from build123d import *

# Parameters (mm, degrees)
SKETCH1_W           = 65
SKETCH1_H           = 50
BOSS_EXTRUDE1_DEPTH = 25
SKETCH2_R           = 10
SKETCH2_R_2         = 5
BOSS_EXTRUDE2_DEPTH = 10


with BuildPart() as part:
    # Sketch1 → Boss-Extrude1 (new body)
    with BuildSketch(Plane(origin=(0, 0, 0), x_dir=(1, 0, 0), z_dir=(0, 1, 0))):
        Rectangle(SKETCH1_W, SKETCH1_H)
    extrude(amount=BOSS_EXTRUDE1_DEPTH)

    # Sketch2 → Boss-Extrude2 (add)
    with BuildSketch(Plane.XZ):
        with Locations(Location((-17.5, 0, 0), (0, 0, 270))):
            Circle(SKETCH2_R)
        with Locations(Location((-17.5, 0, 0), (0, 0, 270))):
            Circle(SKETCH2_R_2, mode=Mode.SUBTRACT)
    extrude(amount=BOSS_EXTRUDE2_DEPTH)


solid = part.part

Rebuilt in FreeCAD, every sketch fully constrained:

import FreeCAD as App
import Part
import Sketcher

V = App.Vector
Q = App.Units.Quantity

doc = App.newDocument("Part")
params = doc.addObject("Spreadsheet::Sheet", "Params")
for row, (alias, value) in enumerate([
    ("sketch1_width", "65 mm"),
    ("sketch1_height", "50 mm"),
    ("pad1_length", "25 mm"),
    ("sketch2_diameter", "20 mm"),
    ("sketch2_diameter2", "10 mm"),
    ("pad2_length", "10 mm"),
], start=1):
    params.set(f"A{row}", alias)
    params.set(f"B{row}", "=" + value)
    params.setAlias(f"B{row}", alias)

body = doc.addObject("PartDesign::Body", "Body")

sketch1 = doc.addObject("Sketcher::SketchObject", "Sketch")
body.addObject(sketch1)
sketch1.AttachmentSupport = (doc.XZ_Plane, [""])
sketch1.MapMode = "FlatFace"
sketch1.addGeometry(Part.LineSegment(V(-32.5, -25, 0), V(-32.5, 25, 0)), False)
sketch1.addGeometry(Part.LineSegment(V(-32.5, 25, 0), V(32.5, 25, 0)), False)
sketch1.addGeometry(Part.LineSegment(V(32.5, 25, 0), V(32.5, -25, 0)), False)
sketch1.addGeometry(Part.LineSegment(V(32.5, -25, 0), V(-32.5, -25, 0)), False)
sketch1.addConstraint(Sketcher.Constraint("Coincident", 0, 2, 1, 1))
sketch1.addConstraint(Sketcher.Constraint("Coincident", 1, 2, 2, 1))
sketch1.addConstraint(Sketcher.Constraint("Coincident", 2, 2, 3, 1))
sketch1.addConstraint(Sketcher.Constraint("Coincident", 3, 2, 0, 1))
sketch1.addConstraint(Sketcher.Constraint("Vertical", 0))
sketch1.addConstraint(Sketcher.Constraint("Horizontal", 1))
sketch1.addConstraint(Sketcher.Constraint("Vertical", 2))
sketch1.addConstraint(Sketcher.Constraint("Horizontal", 3))
sketch1.addConstraint(Sketcher.Constraint("Symmetric", 0, 2, 2, 2, -1, 1))
sketch1.addConstraint(Sketcher.Constraint("DistanceX", 1, 1, 1, 2, Q("65 mm")))
sketch1.addConstraint(Sketcher.Constraint("DistanceY", 0, 1, 0, 2, Q("50 mm")))
sketch1.setExpression("Constraints[9]", "Params.sketch1_width")
sketch1.setExpression("Constraints[10]", "Params.sketch1_height")
pad1 = doc.addObject("PartDesign::Pad", "Pad")
body.addObject(pad1)
pad1.Profile = sketch1
pad1.setExpression("Length", "Params.pad1_length")
pad1.Reversed = True

sketch2 = doc.addObject("Sketcher::SketchObject", "Sketch001")
body.addObject(sketch2)
sketch2.AttachmentSupport = (doc.XZ_Plane, [""])
sketch2.MapMode = "FlatFace"
sketch2.addGeometry(Part.Circle(V(-17.5, 0, 0), V(0, 0, 1), 10), False)
sketch2.addGeometry(Part.Circle(V(-17.5, 0, 0), V(0, 0, 1), 5), False)
sketch2.addConstraint(Sketcher.Constraint("Coincident", 1, 3, 0, 3))
sketch2.addConstraint(Sketcher.Constraint("PointOnObject", 0, 3, -1))
sketch2.addConstraint(Sketcher.Constraint("Diameter", 0, Q("20 mm")))
sketch2.addConstraint(Sketcher.Constraint("Diameter", 1, Q("10 mm")))
sketch2.addConstraint(Sketcher.Constraint("DistanceX", 0, 3, -1, 1, Q("17.5 mm")))
sketch2.setExpression("Constraints[2]", "Params.sketch2_diameter")
sketch2.setExpression("Constraints[3]", "Params.sketch2_diameter2")
pad2 = doc.addObject("PartDesign::Pad", "Pad001")
body.addObject(pad2)
pad2.Profile = sketch2
pad2.setExpression("Length", "Params.pad2_length")

doc.recompute()
